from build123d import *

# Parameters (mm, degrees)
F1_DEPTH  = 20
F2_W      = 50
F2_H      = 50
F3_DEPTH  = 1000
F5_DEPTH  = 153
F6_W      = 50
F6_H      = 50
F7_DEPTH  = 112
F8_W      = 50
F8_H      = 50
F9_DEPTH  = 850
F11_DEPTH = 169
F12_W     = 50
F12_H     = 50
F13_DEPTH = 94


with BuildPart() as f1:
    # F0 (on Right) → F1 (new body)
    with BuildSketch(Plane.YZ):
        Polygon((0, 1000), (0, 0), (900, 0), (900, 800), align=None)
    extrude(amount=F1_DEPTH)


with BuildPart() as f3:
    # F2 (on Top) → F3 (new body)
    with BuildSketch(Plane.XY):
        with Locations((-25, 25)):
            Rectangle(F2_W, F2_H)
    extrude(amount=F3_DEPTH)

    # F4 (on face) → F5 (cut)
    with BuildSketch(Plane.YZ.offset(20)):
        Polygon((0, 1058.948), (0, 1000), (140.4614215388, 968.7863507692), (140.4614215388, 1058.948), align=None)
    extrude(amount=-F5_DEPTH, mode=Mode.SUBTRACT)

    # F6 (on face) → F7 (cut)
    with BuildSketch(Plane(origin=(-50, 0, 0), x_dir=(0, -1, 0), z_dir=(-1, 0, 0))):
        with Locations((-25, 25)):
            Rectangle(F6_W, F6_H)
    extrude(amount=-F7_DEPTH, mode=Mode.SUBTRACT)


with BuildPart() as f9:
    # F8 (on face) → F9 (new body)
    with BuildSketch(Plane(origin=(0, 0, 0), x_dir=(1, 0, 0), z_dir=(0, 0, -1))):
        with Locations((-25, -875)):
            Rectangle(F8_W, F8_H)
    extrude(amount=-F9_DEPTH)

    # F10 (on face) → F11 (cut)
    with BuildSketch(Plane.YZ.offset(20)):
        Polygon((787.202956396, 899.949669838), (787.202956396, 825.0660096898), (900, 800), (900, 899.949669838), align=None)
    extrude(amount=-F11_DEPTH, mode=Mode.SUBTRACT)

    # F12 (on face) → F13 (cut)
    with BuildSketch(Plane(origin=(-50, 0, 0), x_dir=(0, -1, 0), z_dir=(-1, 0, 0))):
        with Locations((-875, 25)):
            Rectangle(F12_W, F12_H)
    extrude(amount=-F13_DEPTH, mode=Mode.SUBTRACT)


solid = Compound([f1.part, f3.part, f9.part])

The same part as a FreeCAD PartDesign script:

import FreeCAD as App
import Part
import Sketcher

V = App.Vector
Q = App.Units.Quantity

doc = App.newDocument("Part")
body = doc.addObject("PartDesign::Body", "Body")

sketch1 = body.newObject("Sketcher::SketchObject", "Sketch")
sketch1.AttachmentSupport = (doc.getObject("YZ_Plane"), [""])
sketch1.MapMode = "FlatFace"
sketch1.addGeometry(Part.LineSegment(V(0, 1000, 0), V(0, 0, 0)), False)
sketch1.addGeometry(Part.LineSegment(V(0, 0, 0), V(900, 0, 0)), False)
sketch1.addGeometry(Part.LineSegment(V(900, 0, 0), V(900, 800, 0)), False)
sketch1.addGeometry(Part.LineSegment(V(900, 800, 0), V(0, 1000, 0)), False)
sketch1.addConstraint(Sketcher.Constraint("Coincident", 0, 2, 1, 1))
sketch1.addConstraint(Sketcher.Constraint("Coincident", 1, 2, 2, 1))
sketch1.addConstraint(Sketcher.Constraint("Coincident", 2, 2, 3, 1))
sketch1.addConstraint(Sketcher.Constraint("Coincident", 3, 2, 0, 1))
sketch1.addConstraint(Sketcher.Constraint("Vertical", 0))
sketch1.addConstraint(Sketcher.Constraint("Horizontal", 1))
sketch1.addConstraint(Sketcher.Constraint("Vertical", 2))
sketch1.addConstraint(Sketcher.Constraint("Coincident", 0, 2, -1, 1))
sketch1.addConstraint(Sketcher.Constraint("DistanceX", 1, 1, 1, 2, Q("900 mm")))
sketch1.addConstraint(Sketcher.Constraint("DistanceY", 0, 2, 0, 1, Q("1000 mm")))
sketch1.addConstraint(Sketcher.Constraint("DistanceY", 2, 1, 2, 2, Q("800 mm")))
pad1 = body.newObject("PartDesign::Pad", "Pad")
pad1.Profile = sketch1
pad1.Length = 20
body2 = doc.addObject("PartDesign::Body", "Body001")

sketch2 = body2.newObject("Sketcher::SketchObject", "Sketch001")
sketch2.AttachmentSupport = (doc.getObject("XY_Plane001"), [""])
sketch2.MapMode = "FlatFace"
sketch2.addGeometry(Part.LineSegment(V(-50, 50, 0), V(-50, 0, 0)), False)
sketch2.addGeometry(Part.LineSegment(V(-50, 0, 0), V(0, 0, 0)), False)
sketch2.addGeometry(Part.LineSegment(V(0, 0, 0), V(0, 50, 0)), False)
sketch2.addGeometry(Part.LineSegment(V(0, 50, 0), V(-50, 50, 0)), False)
sketch2.addConstraint(Sketcher.Constraint("Coincident", 0, 2, 1, 1))
sketch2.addConstraint(Sketcher.Constraint("Coincident", 1, 2, 2, 1))
sketch2.addConstraint(Sketcher.Constraint("Coincident", 2, 2, 3, 1))
sketch2.addConstraint(Sketcher.Constraint("Coincident", 3, 2, 0, 1))
sketch2.addConstraint(Sketcher.Constraint("Vertical", 0))
sketch2.addConstraint(Sketcher.Constraint("Horizontal", 1))
sketch2.addConstraint(Sketcher.Constraint("Vertical", 2))
sketch2.addConstraint(Sketcher.Constraint("Horizontal", 3))
sketch2.addConstraint(Sketcher.Constraint("Coincident", 1, 2, -1, 1))
sketch2.addConstraint(Sketcher.Constraint("Equal", 3, 0))
sketch2.addConstraint(Sketcher.Constraint("DistanceX", 1, 1, 1, 2, Q("50 mm")))
pad2 = body2.newObject("PartDesign::Pad", "Pad001")
pad2.Profile = sketch2
pad2.Length = 1000

sketch3 = body2.newObject("Sketcher::SketchObject", "Sketch002")
sketch3.AttachmentSupport = (doc.getObject("YZ_Plane001"), [""])
sketch3.MapMode = "FlatFace"
sketch3.AttachmentOffset = App.Placement(V(0, 0, 20), App.Rotation())
sketch3.addGeometry(Part.LineSegment(V(0, 1059, 0), V(0, 1000, 0)), False)
sketch3.addGeometry(Part.LineSegment(V(0, 1000, 0), V(140, 969, 0)), False)
sketch3.addGeometry(Part.LineSegment(V(140, 969, 0), V(140, 1059, 0)), False)
sketch3.addGeometry(Part.LineSegment(V(140, 1059, 0), V(0, 1059, 0)), False)
sketch3.addConstraint(Sketcher.Constraint("Coincident", 0, 2, 1, 1))
sketch3.addConstraint(Sketcher.Constraint("Coincident", 1, 2, 2, 1))
sketch3.addConstraint(Sketcher.Constraint("Coincident", 2, 2, 3, 1))
sketch3.addConstraint(Sketcher.Constraint("Coincident", 3, 2, 0, 1))
sketch3.addConstraint(Sketcher.Constraint("Vertical", 0))
sketch3.addConstraint(Sketcher.Constraint("Vertical", 2))
sketch3.addConstraint(Sketcher.Constraint("Horizontal", 3))
sketch3.addConstraint(Sketcher.Constraint("PointOnObject", 0, 2, -2))
sketch3.addConstraint(Sketcher.Constraint("DistanceY", -1, 1, 0, 2, Q("1000 mm")))
sketch3.addConstraint(Sketcher.Constraint("DistanceY", 0, 2, 0, 1, Q("58.948 mm")))
sketch3.addConstraint(Sketcher.Constraint("DistanceX", 3, 2, 3, 1, Q("140.461422 mm")))
sketch3.addConstraint(Sketcher.Constraint("DistanceY", 2, 1, 2, 2, Q("90.161649 mm")))
pocket1 = body2.newObject("PartDesign::Pocket", "Pocket")
pocket1.Profile = sketch3
pocket1.Length = 153

sketch4 = body2.newObject("Sketcher::SketchObject", "Sketch003")
sketch4.AttachmentSupport = (doc.getObject("YZ_Plane001"), [""])
sketch4.MapMode = "FlatFace"
sketch4.AttachmentOffset = App.Placement(V(0, 0, -50), App.Rotation())
sketch4.addGeometry(Part.LineSegment(V(50, 50, 0), V(50, 0, 0)), False)
sketch4.addGeometry(Part.LineSegment(V(50, 0, 0), V(0, 0, 0)), False)
sketch4.addGeometry(Part.LineSegment(V(0, 0, 0), V(0, 50, 0)), False)
sketch4.addGeometry(Part.LineSegment(V(0, 50, 0), V(50, 50, 0)), False)
sketch4.addConstraint(Sketcher.Constraint("Coincident", 0, 2, 1, 1))
sketch4.addConstraint(Sketcher.Constraint("Coincident", 1, 2, 2, 1))
sketch4.addConstraint(Sketcher.Constraint("Coincident", 2, 2, 3, 1))
sketch4.addConstraint(Sketcher.Constraint("Coincident", 3, 2, 0, 1))
sketch4.addConstraint(Sketcher.Constraint("Vertical", 0))
sketch4.addConstraint(Sketcher.Constraint("Horizontal", 1))
sketch4.addConstraint(Sketcher.Constraint("Vertical", 2))
sketch4.addConstraint(Sketcher.Constraint("Horizontal", 3))
sketch4.addConstraint(Sketcher.Constraint("Coincident", 1, 2, -1, 1))
sketch4.addConstraint(Sketcher.Constraint("Equal", 3, 0))
sketch4.addConstraint(Sketcher.Constraint("DistanceX", 1, 2, 1, 1, Q("50 mm")))
pocket2 = body2.newObject("PartDesign::Pocket", "Pocket001")
pocket2.Profile = sketch4
pocket2.Length = 112
pocket2.Reversed = True
body3 = doc.addObject("PartDesign::Body", "Body002")

sketch5 = body3.newObject("Sketcher::SketchObject", "Sketch004")
sketch5.AttachmentSupport = (doc.getObject("XY_Plane002"), [""])
sketch5.MapMode = "FlatFace"
sketch5.addGeometry(Part.LineSegment(V(-50, 850, 0), V(-50, 900, 0)), False)
sketch5.addGeometry(Part.LineSegment(V(-50, 900, 0), V(0, 900, 0)), False)
sketch5.addGeometry(Part.LineSegment(V(0, 900, 0), V(0, 850, 0)), False)
sketch5.addGeometry(Part.LineSegment(V(0, 850, 0), V(-50, 850, 0)), False)
sketch5.addConstraint(Sketcher.Constraint("Coincident", 0, 2, 1, 1))
sketch5.addConstraint(Sketcher.Constraint("Coincident", 1, 2, 2, 1))
sketch5.addConstraint(Sketcher.Constraint("Coincident", 2, 2, 3, 1))
sketch5.addConstraint(Sketcher.Constraint("Coincident", 3, 2, 0, 1))
sketch5.addConstraint(Sketcher.Constraint("Vertical", 0))
sketch5.addConstraint(Sketcher.Constraint("Horizontal", 1))
sketch5.addConstraint(Sketcher.Constraint("Vertical", 2))
sketch5.addConstraint(Sketcher.Constraint("Horizontal", 3))
sketch5.addConstraint(Sketcher.Constraint("PointOnObject", 1, 2, -2))
sketch5.addConstraint(Sketcher.Constraint("Equal", 3, 0))
sketch5.addConstraint(Sketcher.Constraint("DistanceX", 1, 1, 1, 2, Q("50 mm")))
sketch5.addConstraint(Sketcher.Constraint("DistanceY", -1, 1, 0, 2, Q("900 mm")))
pad3 = body3.newObject("PartDesign::Pad", "Pad002")
pad3.Profile = sketch5
pad3.Length = 850

sketch6 = body3.newObject("Sketcher::SketchObject", "Sketch005")
sketch6.AttachmentSupport = (doc.getObject("YZ_Plane002"), [""])
sketch6.MapMode = "FlatFace"
sketch6.AttachmentOffset = App.Placement(V(0, 0, 20), App.Rotation())
sketch6.addGeometry(Part.LineSegment(V(787, 900, 0), V(787, 825, 0)), False)
sketch6.addGeometry(Part.LineSegment(V(787, 825, 0), V(900, 800, 0)), False)
sketch6.addGeometry(Part.LineSegment(V(900, 800, 0), V(900, 900, 0)), False)
sketch6.addGeometry(Part.LineSegment(V(900, 900, 0), V(787, 900, 0)), False)
sketch6.addConstraint(Sketcher.Constraint("Coincident", 0, 2, 1, 1))
sketch6.addConstraint(Sketcher.Constraint("Coincident", 1, 2, 2, 1))
sketch6.addConstraint(Sketcher.Constraint("Coincident", 2, 2, 3, 1))
sketch6.addConstraint(Sketcher.Constraint("Coincident", 3, 2, 0, 1))
sketch6.addConstraint(Sketcher.Constraint("Vertical", 0))
sketch6.addConstraint(Sketcher.Constraint("Vertical", 2))
sketch6.addConstraint(Sketcher.Constraint("Horizontal", 3))
sketch6.addConstraint(Sketcher.Constraint("DistanceX", -1, 1, 1, 2, Q("900 mm")))
sketch6.addConstraint(Sketcher.Constraint("DistanceY", -1, 1, 1, 2, Q("800 mm")))
sketch6.addConstraint(Sketcher.Constraint("DistanceY", 0, 2, 0, 1, Q("74.88366 mm")))
sketch6.addConstraint(Sketcher.Constraint("DistanceY", 2, 1, 2, 2, Q("99.94967 mm")))
sketch6.addConstraint(Sketcher.Constraint("DistanceX", 3, 2, 3, 1, Q("112.797044 mm")))
pocket3 = body3.newObject("PartDesign::Pocket", "Pocket002")
pocket3.Profile = sketch6
pocket3.Length = 169

sketch7 = body3.newObject("Sketcher::SketchObject", "Sketch006")
sketch7.AttachmentSupport = (doc.getObject("YZ_Plane002"), [""])
sketch7.MapMode = "FlatFace"
sketch7.AttachmentOffset = App.Placement(V(0, 0, -50), App.Rotation())
sketch7.addGeometry(Part.LineSegment(V(900, 50, 0), V(900, 0, 0)), False)
sketch7.addGeometry(Part.LineSegment(V(900, 0, 0), V(850, 0, 0)), False)
sketch7.addGeometry(Part.LineSegment(V(850, 0, 0), V(850, 50, 0)), False)
sketch7.addGeometry(Part.LineSegment(V(850, 50, 0), V(900, 50, 0)), False)
sketch7.addConstraint(Sketcher.Constraint("Coincident", 0, 2, 1, 1))
sketch7.addConstraint(Sketcher.Constraint("Coincident", 1, 2, 2, 1))
sketch7.addConstraint(Sketcher.Constraint("Coincident", 2, 2, 3, 1))
sketch7.addConstraint(Sketcher.Constraint("Coincident", 3, 2, 0, 1))
sketch7.addConstraint(Sketcher.Constraint("Vertical", 0))
sketch7.addConstraint(Sketcher.Constraint("Horizontal", 1))
sketch7.addConstraint(Sketcher.Constraint("Vertical", 2))
sketch7.addConstraint(Sketcher.Constraint("Horizontal", 3))
sketch7.addConstraint(Sketcher.Constraint("PointOnObject", 0, 2, -1))
sketch7.addConstraint(Sketcher.Constraint("Equal", 3, 0))
sketch7.addConstraint(Sketcher.Constraint("DistanceX", 1, 2, 1, 1, Q("50 mm")))
sketch7.addConstraint(Sketcher.Constraint("DistanceX", -1, 1, 0, 2, Q("900 mm")))
pocket4 = body3.newObject("PartDesign::Pocket", "Pocket003")
pocket4.Profile = sketch7
pocket4.Length = 94
pocket4.Reversed = True

doc.recompute()
